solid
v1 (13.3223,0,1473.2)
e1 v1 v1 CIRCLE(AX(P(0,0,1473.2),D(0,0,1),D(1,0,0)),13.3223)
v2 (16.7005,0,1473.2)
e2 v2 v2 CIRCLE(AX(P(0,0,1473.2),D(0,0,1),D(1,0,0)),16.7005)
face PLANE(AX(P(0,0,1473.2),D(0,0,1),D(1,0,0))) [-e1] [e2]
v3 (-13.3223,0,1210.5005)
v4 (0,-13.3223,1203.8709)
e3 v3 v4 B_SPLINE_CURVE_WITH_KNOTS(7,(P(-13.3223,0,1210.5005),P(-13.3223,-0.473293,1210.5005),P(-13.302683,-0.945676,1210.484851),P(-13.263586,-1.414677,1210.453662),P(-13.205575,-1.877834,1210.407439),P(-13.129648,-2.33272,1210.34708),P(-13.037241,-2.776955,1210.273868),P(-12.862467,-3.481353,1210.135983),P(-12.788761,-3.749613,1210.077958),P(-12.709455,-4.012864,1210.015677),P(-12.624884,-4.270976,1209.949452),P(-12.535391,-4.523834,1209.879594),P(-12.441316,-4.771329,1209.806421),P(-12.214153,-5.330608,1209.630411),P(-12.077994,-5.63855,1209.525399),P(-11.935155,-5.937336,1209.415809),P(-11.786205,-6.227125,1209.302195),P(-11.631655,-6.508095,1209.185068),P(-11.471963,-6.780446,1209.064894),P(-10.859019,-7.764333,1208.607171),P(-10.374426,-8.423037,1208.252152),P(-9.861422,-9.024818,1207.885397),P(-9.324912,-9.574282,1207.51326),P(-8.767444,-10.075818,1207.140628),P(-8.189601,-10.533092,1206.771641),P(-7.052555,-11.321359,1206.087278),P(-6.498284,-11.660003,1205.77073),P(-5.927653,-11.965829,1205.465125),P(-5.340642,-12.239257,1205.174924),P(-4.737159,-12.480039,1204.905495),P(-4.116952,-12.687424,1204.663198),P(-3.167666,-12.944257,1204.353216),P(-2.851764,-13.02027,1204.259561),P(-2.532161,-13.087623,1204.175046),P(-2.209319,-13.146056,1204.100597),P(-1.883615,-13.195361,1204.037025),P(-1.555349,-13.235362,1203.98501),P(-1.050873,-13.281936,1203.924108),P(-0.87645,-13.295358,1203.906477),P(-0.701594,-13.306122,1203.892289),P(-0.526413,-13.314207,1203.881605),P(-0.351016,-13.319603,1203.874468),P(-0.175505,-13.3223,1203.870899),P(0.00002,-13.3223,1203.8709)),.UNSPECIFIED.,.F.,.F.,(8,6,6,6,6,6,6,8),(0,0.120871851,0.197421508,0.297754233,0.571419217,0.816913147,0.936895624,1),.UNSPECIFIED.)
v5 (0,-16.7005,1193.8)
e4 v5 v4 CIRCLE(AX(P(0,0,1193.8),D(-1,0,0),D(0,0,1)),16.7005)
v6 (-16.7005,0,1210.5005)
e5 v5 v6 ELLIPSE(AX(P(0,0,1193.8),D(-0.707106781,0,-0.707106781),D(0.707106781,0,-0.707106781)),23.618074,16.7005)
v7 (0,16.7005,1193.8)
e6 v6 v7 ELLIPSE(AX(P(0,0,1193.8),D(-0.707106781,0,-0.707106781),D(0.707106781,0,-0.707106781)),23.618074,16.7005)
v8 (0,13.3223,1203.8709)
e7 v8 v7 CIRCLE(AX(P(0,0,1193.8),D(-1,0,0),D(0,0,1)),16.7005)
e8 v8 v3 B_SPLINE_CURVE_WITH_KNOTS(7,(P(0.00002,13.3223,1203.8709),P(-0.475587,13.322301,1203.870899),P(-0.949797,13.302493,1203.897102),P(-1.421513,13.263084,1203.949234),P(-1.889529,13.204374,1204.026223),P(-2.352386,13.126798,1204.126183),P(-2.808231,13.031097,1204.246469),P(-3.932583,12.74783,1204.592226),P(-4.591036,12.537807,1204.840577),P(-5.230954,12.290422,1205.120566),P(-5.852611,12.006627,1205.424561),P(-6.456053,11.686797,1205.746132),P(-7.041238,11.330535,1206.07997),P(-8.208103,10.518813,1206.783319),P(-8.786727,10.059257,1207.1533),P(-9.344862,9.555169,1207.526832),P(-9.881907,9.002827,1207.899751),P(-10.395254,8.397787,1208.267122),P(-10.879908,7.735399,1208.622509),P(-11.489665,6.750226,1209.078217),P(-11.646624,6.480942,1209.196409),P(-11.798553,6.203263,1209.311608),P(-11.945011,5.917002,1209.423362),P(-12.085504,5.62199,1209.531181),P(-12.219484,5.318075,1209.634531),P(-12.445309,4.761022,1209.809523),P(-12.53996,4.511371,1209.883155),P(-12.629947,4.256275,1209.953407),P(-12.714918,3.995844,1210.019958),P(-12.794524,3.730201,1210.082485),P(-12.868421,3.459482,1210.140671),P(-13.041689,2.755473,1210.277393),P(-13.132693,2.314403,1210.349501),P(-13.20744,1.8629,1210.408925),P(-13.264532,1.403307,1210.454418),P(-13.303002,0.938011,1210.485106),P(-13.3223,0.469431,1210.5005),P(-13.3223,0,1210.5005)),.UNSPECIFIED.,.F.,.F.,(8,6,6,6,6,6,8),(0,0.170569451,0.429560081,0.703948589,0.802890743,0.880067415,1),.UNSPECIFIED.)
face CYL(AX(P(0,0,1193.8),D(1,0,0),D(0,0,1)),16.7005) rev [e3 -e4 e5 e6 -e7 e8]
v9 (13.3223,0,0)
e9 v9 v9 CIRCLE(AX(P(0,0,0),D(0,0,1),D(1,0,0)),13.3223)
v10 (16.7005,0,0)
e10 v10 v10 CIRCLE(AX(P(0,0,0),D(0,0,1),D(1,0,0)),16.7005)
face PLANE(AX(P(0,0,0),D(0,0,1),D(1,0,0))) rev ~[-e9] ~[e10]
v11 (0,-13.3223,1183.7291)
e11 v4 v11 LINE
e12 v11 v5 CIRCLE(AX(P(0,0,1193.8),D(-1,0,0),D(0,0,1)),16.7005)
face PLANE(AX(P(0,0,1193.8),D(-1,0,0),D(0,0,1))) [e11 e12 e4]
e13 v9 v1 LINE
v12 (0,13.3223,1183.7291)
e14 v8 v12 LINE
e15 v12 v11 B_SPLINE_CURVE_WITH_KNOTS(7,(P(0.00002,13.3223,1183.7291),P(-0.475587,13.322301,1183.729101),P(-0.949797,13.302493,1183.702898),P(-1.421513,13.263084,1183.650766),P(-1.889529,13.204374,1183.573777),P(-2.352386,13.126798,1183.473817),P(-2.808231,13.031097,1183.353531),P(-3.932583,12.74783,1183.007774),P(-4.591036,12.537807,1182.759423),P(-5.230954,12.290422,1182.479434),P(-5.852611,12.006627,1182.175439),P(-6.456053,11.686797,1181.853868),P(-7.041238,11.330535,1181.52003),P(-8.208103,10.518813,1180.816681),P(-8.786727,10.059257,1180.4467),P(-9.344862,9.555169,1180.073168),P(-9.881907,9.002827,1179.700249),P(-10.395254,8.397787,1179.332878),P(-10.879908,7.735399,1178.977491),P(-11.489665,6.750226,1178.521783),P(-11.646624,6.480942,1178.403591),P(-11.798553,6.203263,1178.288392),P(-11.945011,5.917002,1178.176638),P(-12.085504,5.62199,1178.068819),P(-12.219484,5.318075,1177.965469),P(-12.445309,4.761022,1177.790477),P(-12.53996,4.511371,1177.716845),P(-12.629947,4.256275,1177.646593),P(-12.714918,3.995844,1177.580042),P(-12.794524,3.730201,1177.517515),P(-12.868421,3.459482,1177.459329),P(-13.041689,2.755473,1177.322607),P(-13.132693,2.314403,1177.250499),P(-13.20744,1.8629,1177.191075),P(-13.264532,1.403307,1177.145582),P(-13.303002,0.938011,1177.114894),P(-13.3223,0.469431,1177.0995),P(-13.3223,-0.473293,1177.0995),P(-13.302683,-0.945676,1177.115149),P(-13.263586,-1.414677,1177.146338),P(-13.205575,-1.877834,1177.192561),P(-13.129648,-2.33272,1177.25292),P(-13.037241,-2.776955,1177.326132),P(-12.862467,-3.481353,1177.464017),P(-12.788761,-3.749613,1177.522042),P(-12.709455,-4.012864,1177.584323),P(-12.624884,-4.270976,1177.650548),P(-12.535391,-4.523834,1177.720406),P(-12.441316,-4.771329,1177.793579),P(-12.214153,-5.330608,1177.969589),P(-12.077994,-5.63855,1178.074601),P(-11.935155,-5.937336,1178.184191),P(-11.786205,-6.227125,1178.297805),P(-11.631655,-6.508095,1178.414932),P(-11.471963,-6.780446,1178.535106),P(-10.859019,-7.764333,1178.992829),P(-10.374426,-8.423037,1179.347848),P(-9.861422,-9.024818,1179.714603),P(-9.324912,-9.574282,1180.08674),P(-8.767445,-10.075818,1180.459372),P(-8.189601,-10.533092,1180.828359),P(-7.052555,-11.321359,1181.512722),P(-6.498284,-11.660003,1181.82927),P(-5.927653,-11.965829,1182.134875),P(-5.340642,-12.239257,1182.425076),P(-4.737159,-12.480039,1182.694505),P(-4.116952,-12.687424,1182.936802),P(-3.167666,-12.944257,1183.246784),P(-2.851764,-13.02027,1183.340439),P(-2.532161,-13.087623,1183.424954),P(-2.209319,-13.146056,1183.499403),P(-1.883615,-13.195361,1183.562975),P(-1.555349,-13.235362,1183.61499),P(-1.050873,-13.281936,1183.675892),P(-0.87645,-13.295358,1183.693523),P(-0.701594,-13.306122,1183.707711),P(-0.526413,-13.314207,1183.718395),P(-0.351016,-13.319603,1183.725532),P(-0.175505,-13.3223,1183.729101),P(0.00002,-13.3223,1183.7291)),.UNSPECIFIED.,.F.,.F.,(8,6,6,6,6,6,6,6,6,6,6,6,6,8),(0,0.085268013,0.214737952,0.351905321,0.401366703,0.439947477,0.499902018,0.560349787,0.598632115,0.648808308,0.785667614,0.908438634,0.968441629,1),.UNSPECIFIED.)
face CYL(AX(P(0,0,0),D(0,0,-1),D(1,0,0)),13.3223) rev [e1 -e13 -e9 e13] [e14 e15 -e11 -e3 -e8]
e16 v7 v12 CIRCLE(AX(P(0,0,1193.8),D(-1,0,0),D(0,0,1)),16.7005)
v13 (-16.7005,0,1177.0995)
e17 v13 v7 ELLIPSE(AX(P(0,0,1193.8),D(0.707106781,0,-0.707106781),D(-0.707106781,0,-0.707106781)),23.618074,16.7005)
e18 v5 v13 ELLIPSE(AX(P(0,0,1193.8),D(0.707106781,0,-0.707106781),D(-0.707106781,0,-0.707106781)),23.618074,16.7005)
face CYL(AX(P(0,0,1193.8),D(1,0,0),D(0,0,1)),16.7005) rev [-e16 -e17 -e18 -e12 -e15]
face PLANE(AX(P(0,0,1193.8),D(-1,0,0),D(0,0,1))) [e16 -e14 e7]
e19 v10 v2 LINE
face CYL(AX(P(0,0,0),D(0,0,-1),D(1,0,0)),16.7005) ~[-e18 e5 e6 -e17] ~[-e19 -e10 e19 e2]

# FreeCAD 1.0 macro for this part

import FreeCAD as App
import Part
import Sketcher

V = App.Vector
Q = App.Units.Quantity

doc = App.newDocument("Part")
body = doc.addObject("PartDesign::Body", "Body")

sketch1 = body.newObject("Sketcher::SketchObject", "Sketch")
sketch1.AttachmentSupport = (doc.getObject("XY_Plane"), [""])
sketch1.MapMode = "FlatFace"
sketch1.addGeometry(Part.Circle(V(0, 0, 0), V(0, 0, 1), 17), False)
sketch1.addGeometry(Part.Circle(V(0, 0, 0), V(0, 0, 1), 13), False)
sketch1.addConstraint(Sketcher.Constraint("Coincident", 0, 3, -1, 1))
sketch1.addConstraint(Sketcher.Constraint("Coincident", 1, 3, -1, 1))
sketch1.addConstraint(Sketcher.Constraint("Diameter", 0, Q("1.315 in")))
sketch1.addConstraint(Sketcher.Constraint("Diameter", 1, Q("1.049 in")))
pad1 = body.newObject("PartDesign::Pad", "Pad")
pad1.Profile = sketch1
pad1.Length = Q("58 in")

sketch2 = body.newObject("Sketcher::SketchObject", "Sketch001")
sketch2.AttachmentSupport = (doc.getObject("YZ_Plane"), [""])
sketch2.MapMode = "FlatFace"
sketch2.addGeometry(Part.Circle(V(0, 1194, 0), V(0, 0, 1), 17), False)
sketch2.addConstraint(Sketcher.Constraint("PointOnObject", 0, 3, -2))
sketch2.addConstraint(Sketcher.Constraint("Diameter", 0, Q("1.315 in")))
sketch2.addConstraint(Sketcher.Constraint("DistanceY", -1, 1, 0, 3, Q("47 in")))
pocket1 = body.newObject("PartDesign::Pocket", "Pocket")
pocket1.Profile = sketch2
pocket1.Length = Q("84.38 in")

doc.recompute()
